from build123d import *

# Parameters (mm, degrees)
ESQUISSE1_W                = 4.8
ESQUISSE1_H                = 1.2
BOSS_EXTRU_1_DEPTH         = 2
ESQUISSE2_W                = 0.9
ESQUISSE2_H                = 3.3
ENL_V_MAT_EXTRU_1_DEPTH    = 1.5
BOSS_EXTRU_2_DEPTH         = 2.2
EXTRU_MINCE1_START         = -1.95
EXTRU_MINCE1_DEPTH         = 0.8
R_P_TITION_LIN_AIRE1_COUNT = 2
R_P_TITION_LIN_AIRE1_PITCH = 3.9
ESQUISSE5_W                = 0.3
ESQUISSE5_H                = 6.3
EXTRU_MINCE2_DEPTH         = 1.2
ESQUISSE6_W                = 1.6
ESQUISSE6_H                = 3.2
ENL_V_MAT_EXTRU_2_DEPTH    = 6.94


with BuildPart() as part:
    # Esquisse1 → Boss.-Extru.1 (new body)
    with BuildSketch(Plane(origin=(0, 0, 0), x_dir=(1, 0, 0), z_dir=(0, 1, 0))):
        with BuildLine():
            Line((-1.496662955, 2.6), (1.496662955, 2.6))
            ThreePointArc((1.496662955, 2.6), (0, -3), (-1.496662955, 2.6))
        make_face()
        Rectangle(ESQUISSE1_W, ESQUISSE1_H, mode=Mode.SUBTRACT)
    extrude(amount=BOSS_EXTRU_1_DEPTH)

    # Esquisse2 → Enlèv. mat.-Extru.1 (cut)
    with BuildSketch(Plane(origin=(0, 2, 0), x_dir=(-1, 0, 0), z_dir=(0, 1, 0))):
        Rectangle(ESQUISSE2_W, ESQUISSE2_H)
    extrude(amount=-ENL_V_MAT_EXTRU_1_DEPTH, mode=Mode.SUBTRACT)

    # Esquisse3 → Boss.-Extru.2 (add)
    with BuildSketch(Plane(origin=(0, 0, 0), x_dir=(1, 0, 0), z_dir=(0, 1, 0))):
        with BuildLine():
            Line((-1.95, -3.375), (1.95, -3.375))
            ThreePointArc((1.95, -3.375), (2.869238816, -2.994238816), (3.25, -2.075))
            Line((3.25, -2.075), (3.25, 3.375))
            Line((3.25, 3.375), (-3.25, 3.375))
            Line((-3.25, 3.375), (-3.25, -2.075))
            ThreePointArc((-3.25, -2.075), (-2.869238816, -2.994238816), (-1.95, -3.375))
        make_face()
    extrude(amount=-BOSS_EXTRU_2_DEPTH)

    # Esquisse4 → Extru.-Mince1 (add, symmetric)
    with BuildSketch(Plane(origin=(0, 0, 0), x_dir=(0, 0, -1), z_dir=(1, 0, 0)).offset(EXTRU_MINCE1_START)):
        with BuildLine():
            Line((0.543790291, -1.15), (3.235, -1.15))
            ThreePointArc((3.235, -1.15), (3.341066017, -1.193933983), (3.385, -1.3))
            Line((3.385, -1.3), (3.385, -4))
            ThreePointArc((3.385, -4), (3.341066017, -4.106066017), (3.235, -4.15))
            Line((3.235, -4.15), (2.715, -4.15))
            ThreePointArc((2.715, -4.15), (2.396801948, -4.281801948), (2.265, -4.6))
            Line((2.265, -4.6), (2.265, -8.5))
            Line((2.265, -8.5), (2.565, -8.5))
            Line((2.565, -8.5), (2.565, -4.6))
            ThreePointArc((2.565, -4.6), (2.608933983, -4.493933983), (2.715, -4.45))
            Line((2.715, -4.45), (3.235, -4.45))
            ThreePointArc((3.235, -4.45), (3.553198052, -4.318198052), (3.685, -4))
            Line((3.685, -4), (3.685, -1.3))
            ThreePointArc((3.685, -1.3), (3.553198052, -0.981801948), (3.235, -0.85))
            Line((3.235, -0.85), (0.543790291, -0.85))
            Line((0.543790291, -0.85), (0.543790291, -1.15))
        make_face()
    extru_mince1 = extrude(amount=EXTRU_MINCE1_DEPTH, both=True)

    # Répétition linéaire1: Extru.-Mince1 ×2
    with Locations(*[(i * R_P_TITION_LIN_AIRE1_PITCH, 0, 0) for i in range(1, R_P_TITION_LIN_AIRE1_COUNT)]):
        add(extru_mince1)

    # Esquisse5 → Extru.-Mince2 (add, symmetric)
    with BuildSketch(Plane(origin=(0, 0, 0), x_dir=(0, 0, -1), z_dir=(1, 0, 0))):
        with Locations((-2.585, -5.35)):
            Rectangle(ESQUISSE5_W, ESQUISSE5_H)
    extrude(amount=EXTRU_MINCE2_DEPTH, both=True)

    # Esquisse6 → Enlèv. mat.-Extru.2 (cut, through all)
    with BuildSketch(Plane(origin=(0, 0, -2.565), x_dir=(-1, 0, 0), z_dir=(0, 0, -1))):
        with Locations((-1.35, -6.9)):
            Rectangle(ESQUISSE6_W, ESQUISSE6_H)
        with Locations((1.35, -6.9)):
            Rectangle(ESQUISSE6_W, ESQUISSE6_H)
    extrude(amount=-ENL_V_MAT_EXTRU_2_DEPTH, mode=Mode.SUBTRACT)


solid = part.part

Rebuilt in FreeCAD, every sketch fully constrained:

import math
import FreeCAD as App
import Part
import Sketcher
from FreeCAD import Vector
Q = App.Units.Quantity

doc = App.newDocument("Part")
body = doc.addObject("PartDesign::Body", "Body")

# Sketch on XZ plane
sketch1 = body.newObject("Sketcher::SketchObject", "Sketch")
sketch1.AttachmentSupport = (doc.getObject("XZ_Plane"), [""])
sketch1.MapMode = "FlatFace"
sketch1.addGeometry([
    Part.LineSegment(Vector(1.5, -2.6, 0), Vector(-1.5, -2.6, 0)),  # 0
    Part.ArcOfCircle(Part.Circle(Vector(0, 0, 0), Vector(0, 0, 1), 3), math.radians(-60), math.radians(240)),  # 1
    Part.LineSegment(Vector(-2.4, 0.6, 0), Vector(-2.4, -0.6, 0)),  # 2
    Part.LineSegment(Vector(-2.4, -0.6, 0), Vector(2.4, -0.6, 0)),  # 3
    Part.LineSegment(Vector(2.4, -0.6, 0), Vector(2.4, 0.6, 0)),  # 4
    Part.LineSegment(Vector(2.4, 0.6, 0), Vector(-2.4, 0.6, 0)),  # 5
], False)
sketch1.addConstraint([
    Sketcher.Constraint("Coincident", 0, 1, 1, 1),
    Sketcher.Constraint("Coincident", 1, 2, 0, 2),
    Sketcher.Constraint("Coincident", 2, 2, 3, 1),
    Sketcher.Constraint("Coincident", 3, 2, 4, 1),
    Sketcher.Constraint("Coincident", 4, 2, 5, 1),
    Sketcher.Constraint("Coincident", 5, 2, 2, 1),
    Sketcher.Constraint("Horizontal", 0),
    Sketcher.Constraint("Vertical", 2),
    Sketcher.Constraint("Horizontal", 3),
    Sketcher.Constraint("Vertical", 4),
    Sketcher.Constraint("Horizontal", 5),
    Sketcher.Constraint("Coincident", 1, 3, -1, 1),
    Sketcher.Constraint("Symmetric", 2, 2, 4, 2, -1, 1),
    Sketcher.Constraint("Radius", 1, Q("3 mm")),
    Sketcher.Constraint("DistanceX", 3, 1, 3, 2, Q("4.8 mm")),
    Sketcher.Constraint("DistanceY", 2, 2, 2, 1, Q("1.2 mm")),
    Sketcher.Constraint("DistanceY", 1, 2, 2, 2, Q("2 mm")),
])
pad1 = body.newObject("PartDesign::Pad", "Pad")
pad1.Profile = sketch1
pad1.Length = 2
pad1.Reversed = True

# Sketch on XZ plane
sketch2 = body.newObject("Sketcher::SketchObject", "Sketch001")
sketch2.AttachmentSupport = (doc.getObject("XZ_Plane"), [""])
sketch2.MapMode = "FlatFace"
sketch2.AttachmentOffset = App.Placement(Vector(0, 0, -2), App.Rotation())
sketch2.addGeometry([
    Part.LineSegment(Vector(0.5, 1.6, 0), Vector(0.5, -1.6, 0)),
    Part.LineSegment(Vector(0.5, -1.6, 0), Vector(-0.5, -1.6, 0)),
    Part.LineSegment(Vector(-0.5, -1.6, 0), Vector(-0.5, 1.6, 0)),
    Part.LineSegment(Vector(-0.5, 1.6, 0), Vector(0.5, 1.6, 0)),
], False)
sketch2.addConstraint([
    Sketcher.Constraint("Coincident", 0, 2, 1, 1),
    Sketcher.Constraint("Coincident", 1, 2, 2, 1),
    Sketcher.Constraint("Coincident", 2, 2, 3, 1),
    Sketcher.Constraint("Coincident", 3, 2, 0, 1),
    Sketcher.Constraint("Vertical", 0),
    Sketcher.Constraint("Horizontal", 1),
    Sketcher.Constraint("Vertical", 2),
    Sketcher.Constraint("Horizontal", 3),
    Sketcher.Constraint("Symmetric", 0, 2, 2, 2, -1, 1),
    Sketcher.Constraint("DistanceX", 1, 2, 1, 1, Q("0.9 mm")),
    Sketcher.Constraint("DistanceY", 0, 2, 0, 1, Q("3.3 mm")),
])
pocket1 = body.newObject("PartDesign::Pocket", "Pocket")
pocket1.Profile = sketch2
pocket1.Length = 1.5
pocket1.Reversed = True

# Sketch on XZ plane
sketch3 = body.newObject("Sketcher::SketchObject", "Sketch002")
sketch3.AttachmentSupport = (doc.getObject("XZ_Plane"), [""])
sketch3.MapMode = "FlatFace"
sketch3.addGeometry([
    Part.LineSegment(Vector(-1.9, 3.4, 0), Vector(1.9, 3.4, 0)),  # 0
    Part.ArcOfCircle(Part.Circle(Vector(2, 2.1, 0), Vector(0, 0, 1), 1.3), math.radians(0), math.radians(90)),  # 1
    Part.LineSegment(Vector(3.2, 2.1, 0), Vector(3.2, -3.4, 0)),  # 2
    Part.LineSegment(Vector(3.2, -3.4, 0), Vector(-3.2, -3.4, 0)),  # 3
    Part.LineSegment(Vector(-3.2, -3.4, 0), Vector(-3.2, 2.1, 0)),  # 4
    Part.ArcOfCircle(Part.Circle(Vector(-2, 2.1, 0), Vector(0, 0, 1), 1.3), math.radians(90), math.radians(180)),  # 5
], False)
sketch3.addConstraint([
    Sketcher.Constraint("Tangent", 0, 2, 1, 2),
    Sketcher.Constraint("Tangent", 1, 1, 2, 1),
    Sketcher.Constraint("Coincident", 2, 2, 3, 1),
    Sketcher.Constraint("Coincident", 3, 2, 4, 1),
    Sketcher.Constraint("Tangent", 4, 2, 5, 2),
    Sketcher.Constraint("Tangent", 5, 1, 0, 1),
    Sketcher.Constraint("Horizontal", 0),
    Sketcher.Constraint("Vertical", 2),
    Sketcher.Constraint("Horizontal", 3),
    Sketcher.Constraint("Vertical", 4),
    Sketcher.Constraint("Equal", 1, 5),
    Sketcher.Constraint("Radius", 1, Q("1.3 mm")),
    Sketcher.Constraint("DistanceX", 0, 1, 0, 2, Q("3.9 mm")),
    Sketcher.Constraint("DistanceY", 2, 2, 2, 1, Q("5.45 mm")),
    Sketcher.Constraint("DistanceX", -1, 1, 1, 3, Q("1.95 mm")),
    Sketcher.Constraint("DistanceY", -1, 1, 1, 3, Q("2.075 mm")),
])
pad2 = body.newObject("PartDesign::Pad", "Pad001")
pad2.Profile = sketch3
pad2.Length = 2.2

# Sketch on YZ plane
sketch4 = body.newObject("Sketcher::SketchObject", "Sketch003")
sketch4.AttachmentSupport = (doc.getObject("YZ_Plane"), [""])
sketch4.MapMode = "FlatFace"
sketch4.AttachmentOffset = App.Placement(Vector(0, 0, -1.95), App.Rotation())
sketch4.addGeometry([
    Part.LineSegment(Vector(-1.15, -0.54, 0), Vector(-1.15, -3.23, 0)),  # 0
    Part.ArcOfCircle(Part.Circle(Vector(-1.3, -3.23, 0), Vector(0, 0, 1), 0.15), math.radians(-90), math.radians(0)),  # 1
    Part.LineSegment(Vector(-1.3, -3.38, 0), Vector(-4, -3.38, 0)),  # 2
    Part.ArcOfCircle(Part.Circle(Vector(-4, -3.23, 0), Vector(0, 0, 1), 0.15), math.radians(-180), math.radians(-90)),  # 3
    Part.LineSegment(Vector(-4.15, -3.23, 0), Vector(-4.15, -2.71, 0)),  # 4
    Part.ArcOfCircle(Part.Circle(Vector(-4.6, -2.71, 0), Vector(0, 0, 1), 0.45), math.radians(0), math.radians(90)),  # 5
    Part.LineSegment(Vector(-4.6, -2.27, 0), Vector(-8.5, -2.27, 0)),  # 6
    Part.LineSegment(Vector(-8.5, -2.27, 0), Vector(-8.5, -2.56, 0)),  # 7
    Part.LineSegment(Vector(-8.5, -2.56, 0), Vector(-4.6, -2.56, 0)),  # 8
    Part.ArcOfCircle(Part.Circle(Vector(-4.6, -2.72, 0), Vector(0, 0, 1), 0.15), math.radians(0), math.radians(90)),  # 9
    Part.LineSegment(Vector(-4.45, -2.71, 0), Vector(-4.45, -3.23, 0)),  # 10
    Part.ArcOfCircle(Part.Circle(Vector(-4, -3.24, 0), Vector(0, 0, 1), 0.45), math.radians(180), math.radians(270)),  # 11
    Part.LineSegment(Vector(-4, -3.69, 0), Vector(-1.3, -3.69, 0)),  # 12
    Part.ArcOfCircle(Part.Circle(Vector(-1.3, -3.24, 0), Vector(0, 0, 1), 0.45), math.radians(-90), math.radians(0)),  # 13
    Part.LineSegment(Vector(-0.85, -3.23, 0), Vector(-0.85, -0.54, 0)),  # 14
    Part.LineSegment(Vector(-0.85, -0.54, 0), Vector(-1.15, -0.54, 0)),  # 15
], False)
sketch4.addConstraint([
    Sketcher.Constraint("Tangent", 0, 2, 1, 2),
    Sketcher.Constraint("Tangent", 1, 1, 2, 1),
    Sketcher.Constraint("Tangent", 2, 2, 3, 2),
    Sketcher.Constraint("Tangent", 3, 1, 4, 1),
    Sketcher.Constraint("Tangent", 4, 2, 5, 1),
    Sketcher.Constraint("Tangent", 5, 2, 6, 1),
    Sketcher.Constraint("Coincident", 6, 2, 7, 1),
    Sketcher.Constraint("Coincident", 7, 2, 8, 1),
    Sketcher.Constraint("Tangent", 8, 2, 9, 2),
    Sketcher.Constraint("Tangent", 9, 1, 10, 1),
    Sketcher.Constraint("Tangent", 10, 2, 11, 1),
    Sketcher.Constraint("Tangent", 11, 2, 12, 1),
    Sketcher.Constraint("Tangent", 12, 2, 13, 1),
    Sketcher.Constraint("Tangent", 13, 2, 14, 1),
    Sketcher.Constraint("Coincident", 14, 2, 15, 1),
    Sketcher.Constraint("Coincident", 15, 2, 0, 1),
    Sketcher.Constraint("Vertical", 0),
    Sketcher.Constraint("Horizontal", 2),
    Sketcher.Constraint("Vertical", 4),
    Sketcher.Constraint("Horizontal", 6),
    Sketcher.Constraint("Vertical", 7),
    Sketcher.Constraint("Horizontal", 8),
    Sketcher.Constraint("Vertical", 10),
    Sketcher.Constraint("Horizontal", 12),
    Sketcher.Constraint("Vertical", 14),
    Sketcher.Constraint("Horizontal", 15),
    Sketcher.Constraint("Coincident", 9, 3, 5, 3),
    Sketcher.Constraint("Coincident", 11, 3, 3, 3),
    Sketcher.Constraint("Coincident", 13, 3, 1, 3),
    Sketcher.Constraint("Equal", 1, 3),
    Sketcher.Constraint("Equal", 3, 9),
    Sketcher.Constraint("Radius", 1, Q("0.15 mm")),
    Sketcher.Constraint("Radius", 5, Q("0.45 mm")),
    Sketcher.Constraint("DistanceX", 2, 2, 2, 1, Q("2.7 mm")),
    Sketcher.Constraint("DistanceX", 6, 2, 6, 1, Q("3.9 mm")),
    Sketcher.Constraint("DistanceX", 3, 3, -1, 1, Q("4 mm")),
    Sketcher.Constraint("DistanceY", 4, 1, 4, 2, Q("0.52 mm")),
    Sketcher.Constraint("DistanceY", 1, 3, -1, 1, Q("3.235 mm")),
    Sketcher.Constraint("DistanceY", 0, 2, 0, 1, Q("2.69121 mm")),
])
pad3 = body.newObject("PartDesign::Pad", "Pad002")
pad3.Profile = sketch4
pad3.Length = 1.6
pad3.Midplane = True
doc.recompute()

linearpattern = body.newObject("PartDesign::LinearPattern", "LinearPattern")
linearpattern.Originals = [pad3]
linearpattern.Direction = (doc.getObject("X_Axis"), [""])
linearpattern.Mode = "offset"
linearpattern.Offset = 3.9
linearpattern.Occurrences = 2
body.Tip = linearpattern

# Sketch on YZ plane
sketch5 = body.newObject("Sketcher::SketchObject", "Sketch004")
sketch5.AttachmentSupport = (doc.getObject("YZ_Plane"), [""])
sketch5.MapMode = "FlatFace"
sketch5.addGeometry([
    Part.LineSegment(Vector(-2.2, 2.73, 0), Vector(-8.5, 2.73, 0)),
    Part.LineSegment(Vector(-8.5, 2.73, 0), Vector(-8.5, 2.44, 0)),
    Part.LineSegment(Vector(-8.5, 2.44, 0), Vector(-2.2, 2.44, 0)),
    Part.LineSegment(Vector(-2.2, 2.44, 0), Vector(-2.2, 2.73, 0)),
], False)
sketch5.addConstraint([
    Sketcher.Constraint("Coincident", 0, 2, 1, 1),
    Sketcher.Constraint("Coincident", 1, 2, 2, 1),
    Sketcher.Constraint("Coincident", 2, 2, 3, 1),
    Sketcher.Constraint("Coincident", 3, 2, 0, 1),
    Sketcher.Constraint("Horizontal", 0),
    Sketcher.Constraint("Vertical", 1),
    Sketcher.Constraint("Horizontal", 2),
    Sketcher.Constraint("Vertical", 3),
    Sketcher.Constraint("DistanceX", 0, 2, 0, 1, Q("6.3 mm")),
    Sketcher.Constraint("DistanceY", 1, 2, 1, 1, Q("0.3 mm")),
    Sketcher.Constraint("DistanceX", 0, 2, -1, 1, Q("8.5 mm")),
    Sketcher.Constraint("DistanceY", -1, 1, 0, 2, Q("2.735 mm")),
])
pad4 = body.newObject("PartDesign::Pad", "Pad003")
pad4.Profile = sketch5
pad4.Length = 2.4
pad4.Midplane = True

# Sketch on XY plane
sketch6 = body.newObject("Sketcher::SketchObject", "Sketch005")
sketch6.AttachmentSupport = (doc.getObject("XY_Plane"), [""])
sketch6.MapMode = "FlatFace"
sketch6.AttachmentOffset = App.Placement(Vector(0, 0, -2.565), App.Rotation())
sketch6.addGeometry([
    Part.LineSegment(Vector(2.1, -5.3, 0), Vector(2.1, -8.5, 0)),  # 0
    Part.LineSegment(Vector(2.1, -8.5, 0), Vector(0.6, -8.5, 0)),  # 1
    Part.LineSegment(Vector(0.6, -8.5, 0), Vector(0.6, -5.3, 0)),  # 2
    Part.LineSegment(Vector(0.6, -5.3, 0), Vector(2.1, -5.3, 0)),  # 3
    Part.LineSegment(Vector(-0.6, -5.3, 0), Vector(-0.6, -8.5, 0)),  # 4
    Part.LineSegment(Vector(-0.6, -8.5, 0), Vector(-2.1, -8.5, 0)),  # 5
    Part.LineSegment(Vector(-2.1, -8.5, 0), Vector(-2.1, -5.3, 0)),  # 6
    Part.LineSegment(Vector(-2.1, -5.3, 0), Vector(-0.6, -5.3, 0)),  # 7
], False)
sketch6.addConstraint([
    Sketcher.Constraint("Coincident", 0, 2, 1, 1),
    Sketcher.Constraint("Coincident", 1, 2, 2, 1),
    Sketcher.Constraint("Coincident", 2, 2, 3, 1),
    Sketcher.Constraint("Coincident", 3, 2, 0, 1),
    Sketcher.Constraint("Coincident", 4, 2, 5, 1),
    Sketcher.Constraint("Coincident", 5, 2, 6, 1),
    Sketcher.Constraint("Coincident", 6, 2, 7, 1),
    Sketcher.Constraint("Coincident", 7, 2, 4, 1),
    Sketcher.Constraint("Vertical", 0),
    Sketcher.Constraint("Horizontal", 1),
    Sketcher.Constraint("Vertical", 2),
    Sketcher.Constraint("Horizontal", 3),
    Sketcher.Constraint("Vertical", 4),
    Sketcher.Constraint("Horizontal", 5),
    Sketcher.Constraint("Vertical", 6),
    Sketcher.Constraint("Horizontal", 7),
    Sketcher.Constraint("Symmetric", 1, 2, 4, 2, -2),
    Sketcher.Constraint("Symmetric", 3, 2, 6, 2, -2),
    Sketcher.Constraint("DistanceX", 1, 2, 1, 1, Q("1.6 mm")),
    Sketcher.Constraint("DistanceY", 0, 2, 0, 1, Q("3.2 mm")),
    Sketcher.Constraint("DistanceY", 0, 2, -1, 1, Q("8.5 mm")),
    Sketcher.Constraint("DistanceX", 4, 2, 1, 2, Q("1.1 mm")),
])
pocket2 = body.newObject("PartDesign::Pocket", "Pocket001")
pocket2.Profile = sketch6
pocket2.Type = "ThroughAll"
pocket2.Reversed = True

doc.recompute()
